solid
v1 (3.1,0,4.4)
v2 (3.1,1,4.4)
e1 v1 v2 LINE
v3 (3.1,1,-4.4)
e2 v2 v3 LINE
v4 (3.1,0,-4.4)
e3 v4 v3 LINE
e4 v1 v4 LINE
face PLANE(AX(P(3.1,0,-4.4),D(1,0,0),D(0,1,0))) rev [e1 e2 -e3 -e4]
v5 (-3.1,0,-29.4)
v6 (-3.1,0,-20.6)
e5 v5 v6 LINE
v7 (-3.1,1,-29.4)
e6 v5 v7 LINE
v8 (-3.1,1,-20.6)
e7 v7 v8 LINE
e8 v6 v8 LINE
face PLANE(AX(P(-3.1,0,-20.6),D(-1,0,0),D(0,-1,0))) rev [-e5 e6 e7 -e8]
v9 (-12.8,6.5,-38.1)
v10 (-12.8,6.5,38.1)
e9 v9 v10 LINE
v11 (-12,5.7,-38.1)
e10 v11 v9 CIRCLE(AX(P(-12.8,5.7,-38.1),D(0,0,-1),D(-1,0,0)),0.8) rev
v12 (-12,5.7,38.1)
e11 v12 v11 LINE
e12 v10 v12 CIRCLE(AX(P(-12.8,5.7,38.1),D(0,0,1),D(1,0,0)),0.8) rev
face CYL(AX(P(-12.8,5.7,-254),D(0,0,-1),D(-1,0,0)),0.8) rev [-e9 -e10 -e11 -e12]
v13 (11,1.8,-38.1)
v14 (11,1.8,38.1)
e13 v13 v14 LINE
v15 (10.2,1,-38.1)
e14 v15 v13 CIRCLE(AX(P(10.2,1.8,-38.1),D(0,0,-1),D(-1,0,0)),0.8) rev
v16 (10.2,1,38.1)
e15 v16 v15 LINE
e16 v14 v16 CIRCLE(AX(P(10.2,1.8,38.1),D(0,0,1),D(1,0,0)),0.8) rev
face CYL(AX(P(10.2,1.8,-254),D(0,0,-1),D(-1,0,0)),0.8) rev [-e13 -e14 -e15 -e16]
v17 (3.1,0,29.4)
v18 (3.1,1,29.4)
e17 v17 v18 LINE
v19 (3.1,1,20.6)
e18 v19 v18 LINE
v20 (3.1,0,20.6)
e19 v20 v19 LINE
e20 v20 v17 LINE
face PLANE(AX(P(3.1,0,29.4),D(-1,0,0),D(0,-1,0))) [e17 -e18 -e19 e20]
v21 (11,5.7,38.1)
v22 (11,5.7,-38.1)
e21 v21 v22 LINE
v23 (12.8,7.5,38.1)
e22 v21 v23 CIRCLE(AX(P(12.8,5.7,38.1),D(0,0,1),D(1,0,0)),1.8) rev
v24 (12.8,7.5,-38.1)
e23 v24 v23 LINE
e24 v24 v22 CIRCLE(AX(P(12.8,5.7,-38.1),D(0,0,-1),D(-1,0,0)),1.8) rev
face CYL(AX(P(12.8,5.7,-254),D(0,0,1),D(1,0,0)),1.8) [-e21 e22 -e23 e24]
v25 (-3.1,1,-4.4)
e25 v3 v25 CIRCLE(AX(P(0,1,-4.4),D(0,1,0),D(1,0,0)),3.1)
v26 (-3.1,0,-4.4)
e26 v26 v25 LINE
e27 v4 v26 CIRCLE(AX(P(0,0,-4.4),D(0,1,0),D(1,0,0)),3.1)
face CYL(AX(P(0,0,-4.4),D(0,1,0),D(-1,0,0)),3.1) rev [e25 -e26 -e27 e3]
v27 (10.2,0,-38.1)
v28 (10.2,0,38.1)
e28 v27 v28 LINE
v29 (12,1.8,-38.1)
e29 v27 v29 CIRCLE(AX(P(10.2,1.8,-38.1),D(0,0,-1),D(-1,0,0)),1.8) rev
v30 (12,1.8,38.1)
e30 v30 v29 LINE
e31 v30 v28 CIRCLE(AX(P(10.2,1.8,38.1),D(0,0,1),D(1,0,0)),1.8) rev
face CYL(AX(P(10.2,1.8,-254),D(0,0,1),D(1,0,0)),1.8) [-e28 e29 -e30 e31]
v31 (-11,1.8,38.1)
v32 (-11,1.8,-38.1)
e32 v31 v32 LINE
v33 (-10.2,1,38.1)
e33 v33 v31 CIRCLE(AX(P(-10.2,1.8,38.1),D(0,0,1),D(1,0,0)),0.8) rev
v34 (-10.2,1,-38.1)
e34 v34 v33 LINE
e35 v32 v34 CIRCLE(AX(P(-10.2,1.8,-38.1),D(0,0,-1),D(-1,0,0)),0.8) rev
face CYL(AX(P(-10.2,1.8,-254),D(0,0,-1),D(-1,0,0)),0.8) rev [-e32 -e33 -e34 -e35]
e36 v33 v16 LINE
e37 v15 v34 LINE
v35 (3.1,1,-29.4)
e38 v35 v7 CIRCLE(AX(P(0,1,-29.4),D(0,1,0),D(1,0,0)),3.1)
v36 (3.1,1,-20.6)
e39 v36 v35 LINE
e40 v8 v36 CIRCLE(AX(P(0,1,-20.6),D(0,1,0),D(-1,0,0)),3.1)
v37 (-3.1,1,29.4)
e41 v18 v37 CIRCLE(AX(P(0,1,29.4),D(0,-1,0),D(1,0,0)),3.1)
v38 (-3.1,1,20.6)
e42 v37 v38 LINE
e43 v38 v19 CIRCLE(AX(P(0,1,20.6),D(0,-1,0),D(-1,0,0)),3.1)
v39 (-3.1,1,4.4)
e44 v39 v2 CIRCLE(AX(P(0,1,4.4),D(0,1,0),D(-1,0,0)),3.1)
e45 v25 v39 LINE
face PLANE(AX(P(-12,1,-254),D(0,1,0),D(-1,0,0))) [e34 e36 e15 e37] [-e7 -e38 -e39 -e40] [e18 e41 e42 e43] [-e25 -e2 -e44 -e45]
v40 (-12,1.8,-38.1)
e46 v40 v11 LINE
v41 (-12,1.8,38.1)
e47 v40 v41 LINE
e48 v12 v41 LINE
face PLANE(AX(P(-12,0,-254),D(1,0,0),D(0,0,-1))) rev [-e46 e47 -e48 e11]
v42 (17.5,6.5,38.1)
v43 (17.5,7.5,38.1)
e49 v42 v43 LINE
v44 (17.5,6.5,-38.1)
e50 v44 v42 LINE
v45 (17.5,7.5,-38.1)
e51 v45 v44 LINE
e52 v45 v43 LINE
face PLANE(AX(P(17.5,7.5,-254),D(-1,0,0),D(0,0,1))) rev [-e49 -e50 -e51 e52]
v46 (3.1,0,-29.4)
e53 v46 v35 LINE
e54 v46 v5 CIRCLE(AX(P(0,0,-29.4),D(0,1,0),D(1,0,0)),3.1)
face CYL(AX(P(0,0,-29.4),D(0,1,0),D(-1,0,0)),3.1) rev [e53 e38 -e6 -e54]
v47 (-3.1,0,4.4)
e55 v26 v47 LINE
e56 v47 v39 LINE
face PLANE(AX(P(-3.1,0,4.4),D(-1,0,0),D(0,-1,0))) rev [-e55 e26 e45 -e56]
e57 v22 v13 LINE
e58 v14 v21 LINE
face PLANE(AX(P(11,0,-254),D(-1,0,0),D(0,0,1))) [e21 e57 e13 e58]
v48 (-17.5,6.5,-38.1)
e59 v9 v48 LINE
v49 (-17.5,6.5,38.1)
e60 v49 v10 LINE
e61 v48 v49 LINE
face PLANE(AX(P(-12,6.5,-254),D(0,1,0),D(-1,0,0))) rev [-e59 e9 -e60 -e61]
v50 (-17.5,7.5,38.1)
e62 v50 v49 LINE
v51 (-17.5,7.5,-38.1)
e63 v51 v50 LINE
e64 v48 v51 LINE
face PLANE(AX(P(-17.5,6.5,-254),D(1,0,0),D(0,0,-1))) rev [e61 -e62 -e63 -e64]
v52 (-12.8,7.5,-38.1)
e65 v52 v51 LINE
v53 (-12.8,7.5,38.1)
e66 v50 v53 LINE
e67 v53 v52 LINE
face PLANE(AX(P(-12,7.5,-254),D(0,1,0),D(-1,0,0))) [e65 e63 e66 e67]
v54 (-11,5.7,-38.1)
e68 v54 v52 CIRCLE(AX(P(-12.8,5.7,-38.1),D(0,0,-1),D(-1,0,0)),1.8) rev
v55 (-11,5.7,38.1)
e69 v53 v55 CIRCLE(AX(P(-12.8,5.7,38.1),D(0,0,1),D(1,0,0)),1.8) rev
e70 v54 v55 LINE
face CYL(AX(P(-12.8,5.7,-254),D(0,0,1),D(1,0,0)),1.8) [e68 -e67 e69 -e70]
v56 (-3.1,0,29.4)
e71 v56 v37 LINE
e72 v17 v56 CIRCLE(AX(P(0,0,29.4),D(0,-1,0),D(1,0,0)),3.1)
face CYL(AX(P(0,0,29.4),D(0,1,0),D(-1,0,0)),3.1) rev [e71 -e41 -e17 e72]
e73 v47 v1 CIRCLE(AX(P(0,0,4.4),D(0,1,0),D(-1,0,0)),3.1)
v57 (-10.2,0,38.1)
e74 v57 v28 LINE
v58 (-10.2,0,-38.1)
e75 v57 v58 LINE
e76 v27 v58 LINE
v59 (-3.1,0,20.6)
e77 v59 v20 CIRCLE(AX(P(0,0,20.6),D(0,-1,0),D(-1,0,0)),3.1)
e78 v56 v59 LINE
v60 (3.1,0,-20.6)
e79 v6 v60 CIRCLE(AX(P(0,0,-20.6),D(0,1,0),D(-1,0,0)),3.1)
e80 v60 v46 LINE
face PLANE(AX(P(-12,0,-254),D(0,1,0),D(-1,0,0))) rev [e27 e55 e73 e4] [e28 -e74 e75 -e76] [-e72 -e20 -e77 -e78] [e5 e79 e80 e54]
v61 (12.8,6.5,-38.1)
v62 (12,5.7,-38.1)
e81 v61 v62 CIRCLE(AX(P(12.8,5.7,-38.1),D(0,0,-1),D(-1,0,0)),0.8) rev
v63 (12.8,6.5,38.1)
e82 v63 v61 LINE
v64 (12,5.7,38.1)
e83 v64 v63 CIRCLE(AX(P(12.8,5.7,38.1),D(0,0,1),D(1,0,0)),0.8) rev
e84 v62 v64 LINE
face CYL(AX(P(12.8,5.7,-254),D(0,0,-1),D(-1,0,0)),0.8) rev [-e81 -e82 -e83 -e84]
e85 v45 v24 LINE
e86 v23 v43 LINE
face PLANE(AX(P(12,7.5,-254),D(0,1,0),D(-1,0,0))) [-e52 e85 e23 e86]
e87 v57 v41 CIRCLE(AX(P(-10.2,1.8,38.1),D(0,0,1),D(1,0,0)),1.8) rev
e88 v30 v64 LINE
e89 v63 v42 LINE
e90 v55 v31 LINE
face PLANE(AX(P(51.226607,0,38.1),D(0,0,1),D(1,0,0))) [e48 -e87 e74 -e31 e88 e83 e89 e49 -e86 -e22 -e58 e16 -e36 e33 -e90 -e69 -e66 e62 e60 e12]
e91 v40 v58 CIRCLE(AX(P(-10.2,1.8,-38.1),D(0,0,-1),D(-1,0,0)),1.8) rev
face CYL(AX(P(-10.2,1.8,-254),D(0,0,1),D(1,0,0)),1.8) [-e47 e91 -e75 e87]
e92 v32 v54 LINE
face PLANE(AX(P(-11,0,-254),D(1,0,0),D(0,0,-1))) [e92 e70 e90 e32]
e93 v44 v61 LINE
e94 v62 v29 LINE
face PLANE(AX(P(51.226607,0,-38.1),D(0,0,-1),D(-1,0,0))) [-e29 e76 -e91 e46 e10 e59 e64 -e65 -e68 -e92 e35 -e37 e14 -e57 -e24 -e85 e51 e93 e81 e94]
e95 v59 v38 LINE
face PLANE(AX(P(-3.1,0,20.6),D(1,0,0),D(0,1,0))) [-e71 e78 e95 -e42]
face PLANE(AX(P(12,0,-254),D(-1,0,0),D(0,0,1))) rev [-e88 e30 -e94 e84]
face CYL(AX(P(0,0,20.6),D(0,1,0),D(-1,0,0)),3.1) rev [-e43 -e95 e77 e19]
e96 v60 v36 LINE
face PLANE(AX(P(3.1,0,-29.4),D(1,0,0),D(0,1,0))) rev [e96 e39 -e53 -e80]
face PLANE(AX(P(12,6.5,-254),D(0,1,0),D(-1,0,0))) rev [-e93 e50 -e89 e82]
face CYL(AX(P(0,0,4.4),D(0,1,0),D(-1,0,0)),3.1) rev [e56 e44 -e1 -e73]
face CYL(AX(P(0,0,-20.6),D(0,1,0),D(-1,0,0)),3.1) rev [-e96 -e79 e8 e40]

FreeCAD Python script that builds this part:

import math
import FreeCAD as App
import Part
import Sketcher

V = App.Vector


def edges_at(feature, points):
    """Names of the edges that pass closest to the given points."""
    edges = feature.Shape.Edges
    near = lambda p: min(range(len(edges)), key=lambda i: edges[i].distToShape(Part.Vertex(*p))[0])
    return sorted({f"Edge{near(p) + 1}" for p in points})

doc = App.newDocument("Part")
body = doc.addObject("PartDesign::Body", "Body")

# Sketch on XY plane
sketch1 = body.newObject("Sketcher::SketchObject", "Sketch")
sketch1.AttachmentSupport = (doc.getObject("XY_Plane"), [""])
sketch1.MapMode = "FlatFace"
sketch1.addGeometry(Part.LineSegment(V(-17.5, 6.5, 0), V(-12, 6.5, 0)), False)
sketch1.addGeometry(Part.LineSegment(V(-12, 6.5, 0), V(-12, 0, 0)), False)
sketch1.addGeometry(Part.LineSegment(V(-12, 0, 0), V(12, 0, 0)), False)
sketch1.addGeometry(Part.LineSegment(V(12, 0, 0), V(12, 6.5, 0)), False)
sketch1.addGeometry(Part.LineSegment(V(12, 6.5, 0), V(17.5, 6.5, 0)), False)
sketch1.addGeometry(Part.LineSegment(V(17.5, 6.5, 0), V(17.5, 7.5, 0)), False)
sketch1.addGeometry(Part.LineSegment(V(17.5, 7.5, 0), V(11, 7.5, 0)), False)
sketch1.addGeometry(Part.LineSegment(V(11, 7.5, 0), V(11, 1, 0)), False)
sketch1.addGeometry(Part.LineSegment(V(11, 1, 0), V(-11, 1, 0)), False)
sketch1.addGeometry(Part.LineSegment(V(-11, 1, 0), V(-11, 7.5, 0)), False)
sketch1.addGeometry(Part.LineSegment(V(-11, 7.5, 0), V(-17.5, 7.5, 0)), False)
sketch1.addGeometry(Part.LineSegment(V(-17.5, 7.5, 0), V(-17.5, 6.5, 0)), False)
sketch1.addConstraint(Sketcher.Constraint("Coincident", 0, 2, 1, 1))
sketch1.addConstraint(Sketcher.Constraint("Coincident", 1, 2, 2, 1))
sketch1.addConstraint(Sketcher.Constraint("Coincident", 2, 2, 3, 1))
sketch1.addConstraint(Sketcher.Constraint("Coincident", 3, 2, 4, 1))
sketch1.addConstraint(Sketcher.Constraint("Coincident", 4, 2, 5, 1))
sketch1.addConstraint(Sketcher.Constraint("Coincident", 5, 2, 6, 1))
sketch1.addConstraint(Sketcher.Constraint("Coincident", 6, 2, 7, 1))
sketch1.addConstraint(Sketcher.Constraint("Coincident", 7, 2, 8, 1))
sketch1.addConstraint(Sketcher.Constraint("Coincident", 8, 2, 9, 1))
sketch1.addConstraint(Sketcher.Constraint("Coincident", 9, 2, 10, 1))
sketch1.addConstraint(Sketcher.Constraint("Coincident", 10, 2, 11, 1))
sketch1.addConstraint(Sketcher.Constraint("Coincident", 11, 2, 0, 1))
sketch1.addConstraint(Sketcher.Constraint("Horizontal", 0))
sketch1.addConstraint(Sketcher.Constraint("Vertical", 1))
sketch1.addConstraint(Sketcher.Constraint("Horizontal", 2))
sketch1.addConstraint(Sketcher.Constraint("Vertical", 3))
sketch1.addConstraint(Sketcher.Constraint("Horizontal", 4))
sketch1.addConstraint(Sketcher.Constraint("Vertical", 5))
sketch1.addConstraint(Sketcher.Constraint("Horizontal", 6))
sketch1.addConstraint(Sketcher.Constraint("Vertical", 7))
sketch1.addConstraint(Sketcher.Constraint("Horizontal", 8))
sketch1.addConstraint(Sketcher.Constraint("Vertical", 9))
sketch1.addConstraint(Sketcher.Constraint("Horizontal", 10))
sketch1.addConstraint(Sketcher.Constraint("Vertical", 11))
sketch1.addConstraint(Sketcher.Constraint("Symmetric", 1, 2, 2, 2, -1, 1))
sketch1.addConstraint(Sketcher.Constraint("Symmetric", 6, 2, 9, 2, -2))
sketch1.addConstraint(Sketcher.Constraint("Symmetric", 4, 2, 11, 2, -2))
sketch1.addConstraint(Sketcher.Constraint("Equal", 10, 1))
sketch1.addConstraint(Sketcher.Constraint("Equal", 3, 7))
sketch1.addConstraint(Sketcher.Constraint("DistanceX", 2, 1, 2, 2, 24.0))
sketch1.addConstraint(Sketcher.Constraint("DistanceX", 8, 2, 8, 1, 22.0))
sketch1.addConstraint(Sketcher.Constraint("DistanceY", 5, 1, 5, 2, 1.0))
sketch1.addConstraint(Sketcher.Constraint("DistanceX", 0, 1, 0, 2, 5.5))
pad1 = body.newObject("PartDesign::Pad", "Pad")
pad1.Profile = sketch1
pad1.Length = 508
pad1.Midplane = True
doc.recompute()

fillet = body.newObject("PartDesign::Fillet", "Fillet")
fillet.Base = (pad1, edges_at(pad1, [
    (-11, 1, 0),
    (11, 1, 0),
    (12, 6.5, 0),
    (-12, 6.5, 0),
]))
fillet.Radius = 0.8
doc.recompute()

fillet2 = body.newObject("PartDesign::Fillet", "Fillet001")
fillet2.Base = (fillet, edges_at(fillet, [
    (-11, 7.5, 0),
    (11, 7.5, 0),
    (12, 0, 0),
    (-12, 0, 0),
]))
fillet2.Radius = 1.8

# Sketch on XZ plane
sketch2 = body.newObject("Sketcher::SketchObject", "Sketch001")
sketch2.AttachmentSupport = (doc.getObject("XZ_Plane"), [""])
sketch2.MapMode = "FlatFace"
sketch2.AttachmentOffset = App.Placement(V(0, 0, -1), App.Rotation())
sketch2.addGeometry(Part.LineSegment(V(-3.1, -4.4, 0), V(-3.1, 4.4, 0)), False)
sketch2.addGeometry(Part.ArcOfCircle(Part.Circle(V(0, 4.4, 0), V(0, 0, 1), 3.1), math.radians(0), math.radians(180)), False)
sketch2.addGeometry(Part.LineSegment(V(3.1, 4.4, 0), V(3.1, -4.4, 0)), False)
sketch2.addGeometry(Part.ArcOfCircle(Part.Circle(V(0, -4.4, 0), V(0, 0, 1), 3.1), math.radians(180), math.radians(360)), False)
sketch2.addConstraint(Sketcher.Constraint("Tangent", 0, 2, 1, 2))
sketch2.addConstraint(Sketcher.Constraint("Tangent", 1, 1, 2, 1))
sketch2.addConstraint(Sketcher.Constraint("Tangent", 2, 2, 3, 2))
sketch2.addConstraint(Sketcher.Constraint("Tangent", 3, 1, 0, 1))
sketch2.addConstraint(Sketcher.Constraint("Vertical", 0))
sketch2.addConstraint(Sketcher.Constraint("Vertical", 2))
sketch2.addConstraint(Sketcher.Constraint("Symmetric", 1, 3, 3, 3, -1, 1))
sketch2.addConstraint(Sketcher.Constraint("Radius", 1, 3.1))
sketch2.addConstraint(Sketcher.Constraint("DistanceY", 0, 1, 0, 2, 8.8))
pocket1 = body.newObject("PartDesign::Pocket", "Pocket")
pocket1.Profile = sketch2
pocket1.Type = "ThroughAll"
pocket1.Reversed = True
doc.recompute()

linearpattern = body.newObject("PartDesign::LinearPattern", "LinearPattern")
linearpattern.Originals = [pocket1]
linearpattern.Direction = (doc.getObject("Z_Axis"), [""])
linearpattern.Mode = "offset"
linearpattern.Offset = 25
linearpattern.Occurrences = 10
linearpattern.Reversed = True
body.Tip = linearpattern

# Sketch on XZ plane
sketch3 = body.newObject("Sketcher::SketchObject", "Sketch002")
sketch3.AttachmentSupport = (doc.getObject("XZ_Plane"), [""])
sketch3.MapMode = "FlatFace"
sketch3.AttachmentOffset = App.Placement(V(0, 0, -1), App.Rotation())
sketch3.addGeometry(Part.LineSegment(V(-3.1, 20.6, 0), V(-3.1, 29.4, 0)), False)
sketch3.addGeometry(Part.ArcOfCircle(Part.Circle(V(0, 29.4, 0), V(0, 0, 1), 3.1), math.radians(0), math.radians(180)), False)
sketch3.addGeometry(Part.LineSegment(V(3.1, 29.4, 0), V(3.1, 20.6, 0)), False)
sketch3.addGeometry(Part.ArcOfCircle(Part.Circle(V(0, 20.6, 0), V(0, 0, 1), 3.1), math.radians(180), math.radians(360)), False)
sketch3.addConstraint(Sketcher.Constraint("Tangent", 0, 2, 1, 2))
sketch3.addConstraint(Sketcher.Constraint("Tangent", 1, 1, 2, 1))
sketch3.addConstraint(Sketcher.Constraint("Tangent", 2, 2, 3, 2))
sketch3.addConstraint(Sketcher.Constraint("Tangent", 3, 1, 0, 1))
sketch3.addConstraint(Sketcher.Constraint("Vertical", 0))
sketch3.addConstraint(Sketcher.Constraint("Vertical", 2))
sketch3.addConstraint(Sketcher.Constraint("PointOnObject", 1, 3, -2))
sketch3.addConstraint(Sketcher.Constraint("Radius", 1, 3.1))
sketch3.addConstraint(Sketcher.Constraint("DistanceY", 0, 1, 0, 2, 8.8))
sketch3.addConstraint(Sketcher.Constraint("DistanceY", -1, 1, 1, 3, 29.4))
pocket2 = body.newObject("PartDesign::Pocket", "Pocket001")
pocket2.Profile = sketch3
pocket2.Type = "ThroughAll"
pocket2.Reversed = True

# Sketch on XZ plane
sketch4 = body.newObject("Sketcher::SketchObject", "Sketch003")
sketch4.AttachmentSupport = (doc.getObject("XZ_Plane"), [""])
sketch4.MapMode = "FlatFace"
sketch4.AttachmentOffset = App.Placement(V(0, 0, -1), App.Rotation())
sketch4.addGeometry(Part.LineSegment(V(-3.1, 45.6, 0), V(-3.1, 54.4, 0)), False)
sketch4.addGeometry(Part.ArcOfCircle(Part.Circle(V(0, 54.4, 0), V(0, 0, 1), 3.1), math.radians(0), math.radians(180)), False)
sketch4.addGeometry(Part.LineSegment(V(3.1, 54.4, 0), V(3.1, 45.6, 0)), False)
sketch4.addGeometry(Part.ArcOfCircle(Part.Circle(V(0, 45.6, 0), V(0, 0, 1), 3.1), math.radians(180), math.radians(360)), False)
sketch4.addConstraint(Sketcher.Constraint("Tangent", 0, 2, 1, 2))
sketch4.addConstraint(Sketcher.Constraint("Tangent", 1, 1, 2, 1))
sketch4.addConstraint(Sketcher.Constraint("Tangent", 2, 2, 3, 2))
sketch4.addConstraint(Sketcher.Constraint("Tangent", 3, 1, 0, 1))
sketch4.addConstraint(Sketcher.Constraint("Vertical", 0))
sketch4.addConstraint(Sketcher.Constraint("Vertical", 2))
sketch4.addConstraint(Sketcher.Constraint("PointOnObject", 1, 3, -2))
sketch4.addConstraint(Sketcher.Constraint("Radius", 1, 3.1))
sketch4.addConstraint(Sketcher.Constraint("DistanceY", 0, 1, 0, 2, 8.8))
sketch4.addConstraint(Sketcher.Constraint("DistanceY", -1, 1, 1, 3, 54.4))
pocket3 = body.newObject("PartDesign::Pocket", "Pocket002")
pocket3.Profile = sketch4
pocket3.Type = "ThroughAll"
pocket3.Reversed = True

# Sketch on XZ plane
sketch5 = body.newObject("Sketcher::SketchObject", "Sketch004")
sketch5.AttachmentSupport = (doc.getObject("XZ_Plane"), [""])
sketch5.MapMode = "FlatFace"
sketch5.AttachmentOffset = App.Placement(V(0, 0, -1), App.Rotation())
sketch5.addGeometry(Part.LineSegment(V(-3.1, 70.6, 0), V(-3.1, 79.4, 0)), False)
sketch5.addGeometry(Part.ArcOfCircle(Part.Circle(V(0, 79.4, 0), V(0, 0, 1), 3.1), math.radians(0), math.radians(180)), False)
sketch5.addGeometry(Part.LineSegment(V(3.1, 79.4, 0), V(3.1, 70.6, 0)), False)
sketch5.addGeometry(Part.ArcOfCircle(Part.Circle(V(0, 70.6, 0), V(0, 0, 1), 3.1), math.radians(180), math.radians(360)), False)
sketch5.addConstraint(Sketcher.Constraint("Tangent", 0, 2, 1, 2))
sketch5.addConstraint(Sketcher.Constraint("Tangent", 1, 1, 2, 1))
sketch5.addConstraint(Sketcher.Constraint("Tangent", 2, 2, 3, 2))
sketch5.addConstraint(Sketcher.Constraint("Tangent", 3, 1, 0, 1))
sketch5.addConstraint(Sketcher.Constraint("Vertical", 0))
sketch5.addConstraint(Sketcher.Constraint("Vertical", 2))
sketch5.addConstraint(Sketcher.Constraint("PointOnObject", 1, 3, -2))
sketch5.addConstraint(Sketcher.Constraint("Radius", 1, 3.1))
sketch5.addConstraint(Sketcher.Constraint("DistanceY", 0, 1, 0, 2, 8.8))
sketch5.addConstraint(Sketcher.Constraint("DistanceY", -1, 1, 1, 3, 79.4))
pocket4 = body.newObject("PartDesign::Pocket", "Pocket003")
pocket4.Profile = sketch5
pocket4.Type = "ThroughAll"
pocket4.Reversed = True

# Sketch on XZ plane
sketch6 = body.newObject("Sketcher::SketchObject", "Sketch005")
sketch6.AttachmentSupport = (doc.getObject("XZ_Plane"), [""])
sketch6.MapMode = "FlatFace"
sketch6.AttachmentOffset = App.Placement(V(0, 0, -1), App.Rotation())
sketch6.addGeometry(Part.LineSegment(V(-3.1, 95.6, 0), V(-3.1, 104.4, 0)), False)
sketch6.addGeometry(Part.ArcOfCircle(Part.Circle(V(0, 104.4, 0), V(0, 0, 1), 3.1), math.radians(0), math.radians(180)), False)
sketch6.addGeometry(Part.LineSegment(V(3.1, 104.4, 0), V(3.1, 95.6, 0)), False)
sketch6.addGeometry(Part.ArcOfCircle(Part.Circle(V(0, 95.6, 0), V(0, 0, 1), 3.1), math.radians(180), math.radians(360)), False)
sketch6.addConstraint(Sketcher.Constraint("Tangent", 0, 2, 1, 2))
sketch6.addConstraint(Sketcher.Constraint("Tangent", 1, 1, 2, 1))
sketch6.addConstraint(Sketcher.Constraint("Tangent", 2, 2, 3, 2))
sketch6.addConstraint(Sketcher.Constraint("Tangent", 3, 1, 0, 1))
sketch6.addConstraint(Sketcher.Constraint("Vertical", 0))
sketch6.addConstraint(Sketcher.Constraint("Vertical", 2))
sketch6.addConstraint(Sketcher.Constraint("PointOnObject", 1, 3, -2))
sketch6.addConstraint(Sketcher.Constraint("Radius", 1, 3.1))
sketch6.addConstraint(Sketcher.Constraint("DistanceY", 0, 1, 0, 2, 8.8))
sketch6.addConstraint(Sketcher.Constraint("DistanceY", -1, 1, 1, 3, 104.4))
pocket5 = body.newObject("PartDesign::Pocket", "Pocket004")
pocket5.Profile = sketch6
pocket5.Type = "ThroughAll"
pocket5.Reversed = True

# Sketch on XZ plane
sketch7 = body.newObject("Sketcher::SketchObject", "Sketch006")
sketch7.AttachmentSupport = (doc.getObject("XZ_Plane"), [""])
sketch7.MapMode = "FlatFace"
sketch7.AttachmentOffset = App.Placement(V(0, 0, -1), App.Rotation())
sketch7.addGeometry(Part.LineSegment(V(-3.1, 120.6, 0), V(-3.1, 129.4, 0)), False)
sketch7.addGeometry(Part.ArcOfCircle(Part.Circle(V(0, 129.4, 0), V(0, 0, 1), 3.1), math.radians(0), math.radians(180)), False)
sketch7.addGeometry(Part.LineSegment(V(3.1, 129.4, 0), V(3.1, 120.6, 0)), False)
sketch7.addGeometry(Part.ArcOfCircle(Part.Circle(V(0, 120.6, 0), V(0, 0, 1), 3.1), math.radians(180), math.radians(360)), False)
sketch7.addConstraint(Sketcher.Constraint("Tangent", 0, 2, 1, 2))
sketch7.addConstraint(Sketcher.Constraint("Tangent", 1, 1, 2, 1))
sketch7.addConstraint(Sketcher.Constraint("Tangent", 2, 2, 3, 2))
sketch7.addConstraint(Sketcher.Constraint("Tangent", 3, 1, 0, 1))
sketch7.addConstraint(Sketcher.Constraint("Vertical", 0))
sketch7.addConstraint(Sketcher.Constraint("Vertical", 2))
sketch7.addConstraint(Sketcher.Constraint("PointOnObject", 1, 3, -2))
sketch7.addConstraint(Sketcher.Constraint("Radius", 1, 3.1))
sketch7.addConstraint(Sketcher.Constraint("DistanceY", 0, 1, 0, 2, 8.8))
sketch7.addConstraint(Sketcher.Constraint("DistanceY", -1, 1, 1, 3, 129.4))
pocket6 = body.newObject("PartDesign::Pocket", "Pocket005")
pocket6.Profile = sketch7
pocket6.Type = "ThroughAll"
pocket6.Reversed = True

# Sketch on XZ plane
sketch8 = body.newObject("Sketcher::SketchObject", "Sketch007")
sketch8.AttachmentSupport = (doc.getObject("XZ_Plane"), [""])
sketch8.MapMode = "FlatFace"
sketch8.AttachmentOffset = App.Placement(V(0, 0, -1), App.Rotation())
sketch8.addGeometry(Part.LineSegment(V(-3.1, 145.6, 0), V(-3.1, 154.4, 0)), False)
sketch8.addGeometry(Part.ArcOfCircle(Part.Circle(V(0, 154.4, 0), V(0, 0, 1), 3.1), math.radians(0), math.radians(180)), False)
sketch8.addGeometry(Part.LineSegment(V(3.1, 154.4, 0), V(3.1, 145.6, 0)), False)
sketch8.addGeometry(Part.ArcOfCircle(Part.Circle(V(0, 145.6, 0), V(0, 0, 1), 3.1), math.radians(180), math.radians(360)), False)
sketch8.addConstraint(Sketcher.Constraint("Tangent", 0, 2, 1, 2))
sketch8.addConstraint(Sketcher.Constraint("Tangent", 1, 1, 2, 1))
sketch8.addConstraint(Sketcher.Constraint("Tangent", 2, 2, 3, 2))
sketch8.addConstraint(Sketcher.Constraint("Tangent", 3, 1, 0, 1))
sketch8.addConstraint(Sketcher.Constraint("Vertical", 0))
sketch8.addConstraint(Sketcher.Constraint("Vertical", 2))
sketch8.addConstraint(Sketcher.Constraint("PointOnObject", 1, 3, -2))
sketch8.addConstraint(Sketcher.Constraint("Radius", 1, 3.1))
sketch8.addConstraint(Sketcher.Constraint("DistanceY", 0, 1, 0, 2, 8.8))
sketch8.addConstraint(Sketcher.Constraint("DistanceY", -1, 1, 1, 3, 154.4))
pocket7 = body.newObject("PartDesign::Pocket", "Pocket006")
pocket7.Profile = sketch8
pocket7.Type = "ThroughAll"
pocket7.Reversed = True

# Sketch on XZ plane
sketch9 = body.newObject("Sketcher::SketchObject", "Sketch008")
sketch9.AttachmentSupport = (doc.getObject("XZ_Plane"), [""])
sketch9.MapMode = "FlatFace"
sketch9.AttachmentOffset = App.Placement(V(0, 0, -1), App.Rotation())
sketch9.addGeometry(Part.LineSegment(V(-3.1, 170.6, 0), V(-3.1, 179.4, 0)), False)
sketch9.addGeometry(Part.ArcOfCircle(Part.Circle(V(0, 179.4, 0), V(0, 0, 1), 3.1), math.radians(0), math.radians(180)), False)
sketch9.addGeometry(Part.LineSegment(V(3.1, 179.4, 0), V(3.1, 170.6, 0)), False)
sketch9.addGeometry(Part.ArcOfCircle(Part.Circle(V(0, 170.6, 0), V(0, 0, 1), 3.1), math.radians(180), math.radians(360)), False)
sketch9.addConstraint(Sketcher.Constraint("Tangent", 0, 2, 1, 2))
sketch9.addConstraint(Sketcher.Constraint("Tangent", 1, 1, 2, 1))
sketch9.addConstraint(Sketcher.Constraint("Tangent", 2, 2, 3, 2))
sketch9.addConstraint(Sketcher.Constraint("Tangent", 3, 1, 0, 1))
sketch9.addConstraint(Sketcher.Constraint("Vertical", 0))
sketch9.addConstraint(Sketcher.Constraint("Vertical", 2))
sketch9.addConstraint(Sketcher.Constraint("PointOnObject", 1, 3, -2))
sketch9.addConstraint(Sketcher.Constraint("Radius", 1, 3.1))
sketch9.addConstraint(Sketcher.Constraint("DistanceY", 0, 1, 0, 2, 8.8))
sketch9.addConstraint(Sketcher.Constraint("DistanceY", -1, 1, 1, 3, 179.4))
pocket8 = body.newObject("PartDesign::Pocket", "Pocket007")
pocket8.Profile = sketch9
pocket8.Type = "ThroughAll"
pocket8.Reversed = True

# Sketch on XZ plane
sketch10 = body.newObject("Sketcher::SketchObject", "Sketch009")
sketch10.AttachmentSupport = (doc.getObject("XZ_Plane"), [""])
sketch10.MapMode = "FlatFace"
sketch10.AttachmentOffset = App.Placement(V(0, 0, -1), App.Rotation())
sketch10.addGeometry(Part.LineSegment(V(-3.1, 195.6, 0), V(-3.1, 204.4, 0)), False)
sketch10.addGeometry(Part.ArcOfCircle(Part.Circle(V(0, 204.4, 0), V(0, 0, 1), 3.1), math.radians(0), math.radians(180)), False)
sketch10.addGeometry(Part.LineSegment(V(3.1, 204.4, 0), V(3.1, 195.6, 0)), False)
sketch10.addGeometry(Part.ArcOfCircle(Part.Circle(V(0, 195.6, 0), V(0, 0, 1), 3.1), math.radians(180), math.radians(360)), False)
sketch10.addConstraint(Sketcher.Constraint("Tangent", 0, 2, 1, 2))
sketch10.addConstraint(Sketcher.Constraint("Tangent", 1, 1, 2, 1))
sketch10.addConstraint(Sketcher.Constraint("Tangent", 2, 2, 3, 2))
sketch10.addConstraint(Sketcher.Constraint("Tangent", 3, 1, 0, 1))
sketch10.addConstraint(Sketcher.Constraint("Vertical", 0))
sketch10.addConstraint(Sketcher.Constraint("Vertical", 2))
sketch10.addConstraint(Sketcher.Constraint("PointOnObject", 1, 3, -2))
sketch10.addConstraint(Sketcher.Constraint("Radius", 1, 3.1))
sketch10.addConstraint(Sketcher.Constraint("DistanceY", 0, 1, 0, 2, 8.8))
sketch10.addConstraint(Sketcher.Constraint("DistanceY", -1, 1, 1, 3, 204.4))
pocket9 = body.newObject("PartDesign::Pocket", "Pocket008")
pocket9.Profile = sketch10
pocket9.Type = "ThroughAll"
pocket9.Reversed = True

# Sketch on XZ plane
sketch11 = body.newObject("Sketcher::SketchObject", "Sketch010")
sketch11.AttachmentSupport = (doc.getObject("XZ_Plane"), [""])
sketch11.MapMode = "FlatFace"
sketch11.AttachmentOffset = App.Placement(V(0, 0, -1), App.Rotation())
sketch11.addGeometry(Part.LineSegment(V(-3.1, 220.6, 0), V(-3.1, 229.4, 0)), False)
sketch11.addGeometry(Part.ArcOfCircle(Part.Circle(V(0, 229.4, 0), V(0, 0, 1), 3.1), math.radians(0), math.radians(180)), False)
sketch11.addGeometry(Part.LineSegment(V(3.1, 229.4, 0), V(3.1, 220.6, 0)), False)
sketch11.addGeometry(Part.ArcOfCircle(Part.Circle(V(0, 220.6, 0), V(0, 0, 1), 3.1), math.radians(180), math.radians(360)), False)
sketch11.addConstraint(Sketcher.Constraint("Tangent", 0, 2, 1, 2))
sketch11.addConstraint(Sketcher.Constraint("Tangent", 1, 1, 2, 1))
sketch11.addConstraint(Sketcher.Constraint("Tangent", 2, 2, 3, 2))
sketch11.addConstraint(Sketcher.Constraint("Tangent", 3, 1, 0, 1))
sketch11.addConstraint(Sketcher.Constraint("Vertical", 0))
sketch11.addConstraint(Sketcher.Constraint("Vertical", 2))
sketch11.addConstraint(Sketcher.Constraint("PointOnObject", 1, 3, -2))
sketch11.addConstraint(Sketcher.Constraint("Radius", 1, 3.1))
sketch11.addConstraint(Sketcher.Constraint("DistanceY", 0, 1, 0, 2, 8.8))
sketch11.addConstraint(Sketcher.Constraint("DistanceY", -1, 1, 1, 3, 229.4))
pocket10 = body.newObject("PartDesign::Pocket", "Pocket009")
pocket10.Profile = sketch11
pocket10.Type = "ThroughAll"
pocket10.Reversed = True

# Sketch on XZ plane
sketch12 = body.newObject("Sketcher::SketchObject", "Sketch011")
sketch12.AttachmentSupport = (doc.getObject("XZ_Plane"), [""])
sketch12.MapMode = "FlatFace"
sketch12.AttachmentOffset = App.Placement(V(0, 0, -1), App.Rotation())
sketch12.addGeometry(Part.LineSegment(V(-3.1, -4.4, 0), V(-3.1, 4.4, 0)), False)
sketch12.addGeometry(Part.ArcOfCircle(Part.Circle(V(0, 4.4, 0), V(0, 0, 1), 3.1), math.radians(0), math.radians(180)), False)
sketch12.addGeometry(Part.LineSegment(V(3.1, 4.4, 0), V(3.1, -4.4, 0)), False)
sketch12.addGeometry(Part.ArcOfCircle(Part.Circle(V(0, -4.4, 0), V(0, 0, 1), 3.1), math.radians(180), math.radians(360)), False)
sketch12.addConstraint(Sketcher.Constraint("Tangent", 0, 2, 1, 2))
sketch12.addConstraint(Sketcher.Constraint("Tangent", 1, 1, 2, 1))
sketch12.addConstraint(Sketcher.Constraint("Tangent", 2, 2, 3, 2))
sketch12.addConstraint(Sketcher.Constraint("Tangent", 3, 1, 0, 1))
sketch12.addConstraint(Sketcher.Constraint("Vertical", 0))
sketch12.addConstraint(Sketcher.Constraint("Vertical", 2))
sketch12.addConstraint(Sketcher.Constraint("Symmetric", 1, 3, 3, 3, -1, 1))
sketch12.addConstraint(Sketcher.Constraint("Radius", 1, 3.1))
sketch12.addConstraint(Sketcher.Constraint("DistanceY", 0, 1, 0, 2, 8.8))
pocket11 = body.newObject("PartDesign::Pocket", "Pocket010")
pocket11.Profile = sketch12
pocket11.Type = "ThroughAll"
pocket11.Reversed = True

# Sketch on XZ plane
sketch13 = body.newObject("Sketcher::SketchObject", "Sketch012")
sketch13.AttachmentSupport = (doc.getObject("XZ_Plane"), [""])
sketch13.MapMode = "FlatFace"
sketch13.AttachmentOffset = App.Placement(V(0, 0, -7.5), App.Rotation())
sketch13.addGeometry(Part.LineSegment(V(69, 306, 0), V(69, -306, 0)), False)
sketch13.addGeometry(Part.LineSegment(V(69, -306, 0), V(-69, -306, 0)), False)
sketch13.addGeometry(Part.LineSegment(V(-69, -306, 0), V(-69, 306, 0)), False)
sketch13.addGeometry(Part.LineSegment(V(-69, 306, 0), V(69, 306, 0)), False)
sketch13.addGeometry(Part.LineSegment(V(-48, -38, 0), V(51, -38, 0)), False)
sketch13.addGeometry(Part.LineSegment(V(51, -38, 0), V(51, 38, 0)), False)
sketch13.addGeometry(Part.LineSegment(V(51, 38, 0), V(-48, 38, 0)), False)
sketch13.addGeometry(Part.LineSegment(V(-48, 38, 0), V(-48, -38, 0)), False)
sketch13.addConstraint(Sketcher.Constraint("Coincident", 0, 2, 1, 1))
sketch13.addConstraint(Sketcher.Constraint("Coincident", 1, 2, 2, 1))
sketch13.addConstraint(Sketcher.Constraint("Coincident", 2, 2, 3, 1))
sketch13.addConstraint(Sketcher.Constraint("Coincident", 3, 2, 0, 1))
sketch13.addConstraint(Sketcher.Constraint("Coincident", 4, 2, 5, 1))
sketch13.addConstraint(Sketcher.Constraint("Coincident", 5, 2, 6, 1))
sketch13.addConstraint(Sketcher.Constraint("Coincident", 6, 2, 7, 1))
sketch13.addConstraint(Sketcher.Constraint("Coincident", 7, 2, 4, 1))
sketch13.addConstraint(Sketcher.Constraint("Vertical", 0))
sketch13.addConstraint(Sketcher.Constraint("Horizontal", 1))
sketch13.addConstraint(Sketcher.Constraint("Vertical", 2))
sketch13.addConstraint(Sketcher.Constraint("Horizontal", 3))
sketch13.addConstraint(Sketcher.Constraint("Horizontal", 4))
sketch13.addConstraint(Sketcher.Constraint("Vertical", 5))
sketch13.addConstraint(Sketcher.Constraint("Horizontal", 6))
sketch13.addConstraint(Sketcher.Constraint("Vertical", 7))
sketch13.addConstraint(Sketcher.Constraint("Symmetric", 0, 2, 2, 2, -1, 1))
sketch13.addConstraint(Sketcher.Constraint("DistanceY", 5, 1, 5, 2, 76.2))
sketch13.addConstraint(Sketcher.Constraint("DistanceY", 4, 2, -1, 1, 38.1))
sketch13.addConstraint(Sketcher.Constraint("DistanceX", 1, 2, 1, 1, 138.852))
sketch13.addConstraint(Sketcher.Constraint("DistanceY", 0, 2, 0, 1, 611.852))
sketch13.addConstraint(Sketcher.Constraint("DistanceX", 4, 1, 4, 2, 99.454564))
sketch13.addConstraint(Sketcher.Constraint("DistanceX", -1, 1, 4, 2, 51.226607))
pocket12 = body.newObject("PartDesign::Pocket", "Pocket011")
pocket12.Profile = sketch13
pocket12.Type = "ThroughAll"
pocket12.Reversed = True

doc.recompute()
